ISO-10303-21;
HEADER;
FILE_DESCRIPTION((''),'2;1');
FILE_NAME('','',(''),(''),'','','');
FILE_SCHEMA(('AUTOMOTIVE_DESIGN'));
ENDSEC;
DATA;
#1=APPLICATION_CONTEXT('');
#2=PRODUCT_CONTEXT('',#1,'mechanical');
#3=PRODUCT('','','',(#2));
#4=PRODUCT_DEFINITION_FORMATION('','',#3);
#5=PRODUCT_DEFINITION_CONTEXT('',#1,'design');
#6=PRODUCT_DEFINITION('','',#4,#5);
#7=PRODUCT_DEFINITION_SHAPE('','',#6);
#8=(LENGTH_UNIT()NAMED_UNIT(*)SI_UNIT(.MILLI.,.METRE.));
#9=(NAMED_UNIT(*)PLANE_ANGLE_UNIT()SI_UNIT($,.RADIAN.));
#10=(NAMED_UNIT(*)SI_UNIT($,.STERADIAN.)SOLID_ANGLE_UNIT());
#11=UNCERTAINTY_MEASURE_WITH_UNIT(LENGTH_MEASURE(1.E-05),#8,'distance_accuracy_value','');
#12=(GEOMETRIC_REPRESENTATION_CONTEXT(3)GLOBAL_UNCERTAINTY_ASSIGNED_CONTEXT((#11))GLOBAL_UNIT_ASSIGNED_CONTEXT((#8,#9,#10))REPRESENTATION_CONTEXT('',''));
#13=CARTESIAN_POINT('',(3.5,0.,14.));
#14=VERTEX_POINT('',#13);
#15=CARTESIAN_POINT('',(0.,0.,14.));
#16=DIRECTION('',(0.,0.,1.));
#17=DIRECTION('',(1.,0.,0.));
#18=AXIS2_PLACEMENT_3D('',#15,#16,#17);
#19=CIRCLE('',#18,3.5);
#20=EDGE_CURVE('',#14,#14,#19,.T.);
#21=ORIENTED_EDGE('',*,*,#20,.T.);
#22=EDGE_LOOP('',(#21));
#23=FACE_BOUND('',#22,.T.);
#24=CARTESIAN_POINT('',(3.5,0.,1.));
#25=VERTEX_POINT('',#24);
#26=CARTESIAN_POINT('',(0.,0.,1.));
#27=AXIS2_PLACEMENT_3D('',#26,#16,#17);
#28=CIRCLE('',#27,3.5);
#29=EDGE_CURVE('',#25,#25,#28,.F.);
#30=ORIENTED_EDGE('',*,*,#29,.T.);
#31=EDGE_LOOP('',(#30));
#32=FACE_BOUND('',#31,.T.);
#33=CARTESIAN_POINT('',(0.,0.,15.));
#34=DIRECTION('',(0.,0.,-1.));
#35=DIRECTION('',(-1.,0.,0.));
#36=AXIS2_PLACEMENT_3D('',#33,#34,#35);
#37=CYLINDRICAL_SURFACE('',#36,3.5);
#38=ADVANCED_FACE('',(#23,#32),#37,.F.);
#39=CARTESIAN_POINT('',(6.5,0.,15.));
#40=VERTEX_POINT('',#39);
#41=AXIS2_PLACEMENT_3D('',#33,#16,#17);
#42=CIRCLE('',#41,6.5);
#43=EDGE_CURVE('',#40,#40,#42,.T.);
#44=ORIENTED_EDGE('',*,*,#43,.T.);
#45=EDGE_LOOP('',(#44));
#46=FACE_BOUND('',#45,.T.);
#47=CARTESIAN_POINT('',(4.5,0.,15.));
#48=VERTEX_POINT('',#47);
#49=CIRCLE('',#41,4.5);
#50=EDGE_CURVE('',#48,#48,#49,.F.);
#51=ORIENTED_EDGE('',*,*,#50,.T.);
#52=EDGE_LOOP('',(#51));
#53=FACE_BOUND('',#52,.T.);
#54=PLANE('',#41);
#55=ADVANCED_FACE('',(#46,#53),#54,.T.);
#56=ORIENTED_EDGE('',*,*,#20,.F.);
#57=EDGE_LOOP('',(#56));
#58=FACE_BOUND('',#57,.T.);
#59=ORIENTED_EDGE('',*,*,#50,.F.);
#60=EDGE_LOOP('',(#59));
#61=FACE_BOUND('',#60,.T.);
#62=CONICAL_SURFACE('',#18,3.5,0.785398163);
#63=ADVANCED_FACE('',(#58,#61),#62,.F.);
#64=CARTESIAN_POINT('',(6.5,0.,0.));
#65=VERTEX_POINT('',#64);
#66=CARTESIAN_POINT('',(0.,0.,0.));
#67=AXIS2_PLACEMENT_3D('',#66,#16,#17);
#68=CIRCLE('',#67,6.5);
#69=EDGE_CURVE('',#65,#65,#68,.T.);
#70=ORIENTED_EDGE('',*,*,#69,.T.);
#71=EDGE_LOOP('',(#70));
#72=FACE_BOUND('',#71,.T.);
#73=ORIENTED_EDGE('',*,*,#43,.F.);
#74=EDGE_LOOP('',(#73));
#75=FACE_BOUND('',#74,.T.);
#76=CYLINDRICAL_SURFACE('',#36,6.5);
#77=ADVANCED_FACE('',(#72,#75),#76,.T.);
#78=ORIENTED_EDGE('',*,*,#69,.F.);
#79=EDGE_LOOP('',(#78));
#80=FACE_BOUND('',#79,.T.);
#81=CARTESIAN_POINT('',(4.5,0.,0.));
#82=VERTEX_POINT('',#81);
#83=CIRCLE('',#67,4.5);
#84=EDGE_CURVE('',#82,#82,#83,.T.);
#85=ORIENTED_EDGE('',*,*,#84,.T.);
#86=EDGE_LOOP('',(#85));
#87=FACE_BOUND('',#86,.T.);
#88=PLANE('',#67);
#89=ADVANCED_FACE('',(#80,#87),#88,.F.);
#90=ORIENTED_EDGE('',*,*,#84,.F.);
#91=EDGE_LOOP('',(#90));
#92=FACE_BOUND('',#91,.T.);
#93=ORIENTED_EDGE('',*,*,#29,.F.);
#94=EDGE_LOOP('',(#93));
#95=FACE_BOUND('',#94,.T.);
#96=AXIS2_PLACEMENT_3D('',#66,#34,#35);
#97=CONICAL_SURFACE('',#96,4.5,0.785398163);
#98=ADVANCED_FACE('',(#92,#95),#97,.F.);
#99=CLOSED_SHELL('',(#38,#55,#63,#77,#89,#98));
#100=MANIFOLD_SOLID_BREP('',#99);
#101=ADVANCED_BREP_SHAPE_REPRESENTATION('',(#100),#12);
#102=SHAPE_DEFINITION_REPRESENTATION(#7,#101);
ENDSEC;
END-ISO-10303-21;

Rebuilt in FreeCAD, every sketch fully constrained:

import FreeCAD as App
import Part
import Sketcher

V = App.Vector


def edges_at(feature, points):
    """Names of the edges that pass closest to the given points."""
    edges = feature.Shape.Edges
    near = lambda p: min(range(len(edges)), key=lambda i: edges[i].distToShape(Part.Vertex(*p))[0])
    return sorted({f"Edge{near(p) + 1}" for p in points})

doc = App.newDocument("Part")
params = doc.addObject("Spreadsheet::Sheet", "Params")
for row, (alias, value) in enumerate([
    ("sketch1_diameter", "13 mm"),
    ("sketch1_diameter2", "7 mm"),
    ("pad1_length", "15 mm"),
    ("chamfer_size", "1 mm"),
], start=1):
    params.set(f"A{row}", alias)
    params.set(f"B{row}", "=" + value)
    params.setAlias(f"B{row}", alias)

body = doc.addObject("PartDesign::Body", "Body")

sketch1 = body.newObject("Sketcher::SketchObject", "Sketch")
sketch1.AttachmentSupport = (doc.getObject("XY_Plane"), [""])
sketch1.MapMode = "FlatFace"
sketch1.addGeometry([
    Part.Circle(V(0, 0, 0), V(0, 0, 1), 6.5),
    Part.Circle(V(0, 0, 0), V(0, 0, 1), 3.5),
], False)
sketch1.addConstraint([
    Sketcher.Constraint("Coincident", 0, 3, -1, 1),
    Sketcher.Constraint("Coincident", 1, 3, -1, 1),
    Sketcher.Constraint("Diameter", 0, 13.0),
    Sketcher.Constraint("Diameter", 1, 7.0),
])
sketch1.setExpression("Constraints[2]", "Params.sketch1_diameter")
sketch1.setExpression("Constraints[3]", "Params.sketch1_diameter2")
pad1 = body.newObject("PartDesign::Pad", "Pad")
pad1.Profile = sketch1
pad1.setExpression("Length", "Params.pad1_length")
doc.recompute()

chamfer = body.newObject("PartDesign::Chamfer", "Chamfer")
chamfer.Base = (pad1, edges_at(pad1, [(-3.5, 0, 0), (-3.5, 0, 15)]))
chamfer.setExpression("Size", "Params.chamfer_size")

doc.recompute()
